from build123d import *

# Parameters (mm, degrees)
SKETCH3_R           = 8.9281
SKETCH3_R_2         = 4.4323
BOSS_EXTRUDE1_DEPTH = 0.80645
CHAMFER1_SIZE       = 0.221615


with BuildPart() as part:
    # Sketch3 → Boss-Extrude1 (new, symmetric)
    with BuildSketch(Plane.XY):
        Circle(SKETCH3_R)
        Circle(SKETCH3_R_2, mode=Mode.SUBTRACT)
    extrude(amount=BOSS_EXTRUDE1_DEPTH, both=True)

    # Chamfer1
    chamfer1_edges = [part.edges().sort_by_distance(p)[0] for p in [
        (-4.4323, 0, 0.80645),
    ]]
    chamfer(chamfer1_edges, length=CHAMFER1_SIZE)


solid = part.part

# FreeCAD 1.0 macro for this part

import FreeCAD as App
import Part
import Sketcher
Q = App.Units.Quantity


def edges_at(feature, points):
    """Names of the edges that pass closest to the given points."""
    edges = feature.Shape.Edges
    near = lambda p: min(range(len(edges)), key=lambda i: edges[i].distToShape(Part.Vertex(*p))[0])
    return sorted({f"Edge{near(p) + 1}" for p in points})

doc = App.newDocument("Part")
params = doc.addObject("Spreadsheet::Sheet", "Params")
for row, (alias, value) in enumerate([
    ("sketch1_diameter", "0.703 in"),
    ("sketch1_diameter2", "0.349 in"),
    ("pad1_length", "0.0635 in"),
    ("chamfer_size", "0.221615 mm"),
], start=1):
    params.set(f"A{row}", alias)
    params.set(f"B{row}", "=" + value)
    params.setAlias(f"B{row}", alias)

body = doc.addObject("PartDesign::Body", "Body")

sketch1 = body.newObject("Sketcher::SketchObject", "Sketch")
sketch1.AttachmentSupport = (doc.getObject("XY_Plane"), [""])
sketch1.MapMode = "FlatFace"
sketch1.addGeometry(Part.Circle(App.Vector(0, 0, 0), App.Vector(0, 0, 1), 8.9), False)
sketch1.addGeometry(Part.Circle(App.Vector(0, 0, 0), App.Vector(0, 0, 1), 4.4), False)
sketch1.addConstraint(Sketcher.Constraint("Coincident", 0, 3, -1, 1))
sketch1.addConstraint(Sketcher.Constraint("Coincident", 1, 3, -1, 1))
sketch1.addConstraint(Sketcher.Constraint("Diameter", 0, Q("0.703 in")))
sketch1.addConstraint(Sketcher.Constraint("Diameter", 1, Q("0.349 in")))
sketch1.setExpression("Constraints[2]", "Params.sketch1_diameter")
sketch1.setExpression("Constraints[3]", "Params.sketch1_diameter2")
pad1 = body.newObject("PartDesign::Pad", "Pad")
pad1.Profile = sketch1
pad1.setExpression("Length", "Params.pad1_length")
pad1.Midplane = True
doc.recompute()

chamfer = body.newObject("PartDesign::Chamfer", "Chamfer")
chamfer.Base = (pad1, edges_at(pad1, [(-4.432, 0, 0.806)]))
chamfer.setExpression("Size", "Params.chamfer_size")

doc.recompute()
